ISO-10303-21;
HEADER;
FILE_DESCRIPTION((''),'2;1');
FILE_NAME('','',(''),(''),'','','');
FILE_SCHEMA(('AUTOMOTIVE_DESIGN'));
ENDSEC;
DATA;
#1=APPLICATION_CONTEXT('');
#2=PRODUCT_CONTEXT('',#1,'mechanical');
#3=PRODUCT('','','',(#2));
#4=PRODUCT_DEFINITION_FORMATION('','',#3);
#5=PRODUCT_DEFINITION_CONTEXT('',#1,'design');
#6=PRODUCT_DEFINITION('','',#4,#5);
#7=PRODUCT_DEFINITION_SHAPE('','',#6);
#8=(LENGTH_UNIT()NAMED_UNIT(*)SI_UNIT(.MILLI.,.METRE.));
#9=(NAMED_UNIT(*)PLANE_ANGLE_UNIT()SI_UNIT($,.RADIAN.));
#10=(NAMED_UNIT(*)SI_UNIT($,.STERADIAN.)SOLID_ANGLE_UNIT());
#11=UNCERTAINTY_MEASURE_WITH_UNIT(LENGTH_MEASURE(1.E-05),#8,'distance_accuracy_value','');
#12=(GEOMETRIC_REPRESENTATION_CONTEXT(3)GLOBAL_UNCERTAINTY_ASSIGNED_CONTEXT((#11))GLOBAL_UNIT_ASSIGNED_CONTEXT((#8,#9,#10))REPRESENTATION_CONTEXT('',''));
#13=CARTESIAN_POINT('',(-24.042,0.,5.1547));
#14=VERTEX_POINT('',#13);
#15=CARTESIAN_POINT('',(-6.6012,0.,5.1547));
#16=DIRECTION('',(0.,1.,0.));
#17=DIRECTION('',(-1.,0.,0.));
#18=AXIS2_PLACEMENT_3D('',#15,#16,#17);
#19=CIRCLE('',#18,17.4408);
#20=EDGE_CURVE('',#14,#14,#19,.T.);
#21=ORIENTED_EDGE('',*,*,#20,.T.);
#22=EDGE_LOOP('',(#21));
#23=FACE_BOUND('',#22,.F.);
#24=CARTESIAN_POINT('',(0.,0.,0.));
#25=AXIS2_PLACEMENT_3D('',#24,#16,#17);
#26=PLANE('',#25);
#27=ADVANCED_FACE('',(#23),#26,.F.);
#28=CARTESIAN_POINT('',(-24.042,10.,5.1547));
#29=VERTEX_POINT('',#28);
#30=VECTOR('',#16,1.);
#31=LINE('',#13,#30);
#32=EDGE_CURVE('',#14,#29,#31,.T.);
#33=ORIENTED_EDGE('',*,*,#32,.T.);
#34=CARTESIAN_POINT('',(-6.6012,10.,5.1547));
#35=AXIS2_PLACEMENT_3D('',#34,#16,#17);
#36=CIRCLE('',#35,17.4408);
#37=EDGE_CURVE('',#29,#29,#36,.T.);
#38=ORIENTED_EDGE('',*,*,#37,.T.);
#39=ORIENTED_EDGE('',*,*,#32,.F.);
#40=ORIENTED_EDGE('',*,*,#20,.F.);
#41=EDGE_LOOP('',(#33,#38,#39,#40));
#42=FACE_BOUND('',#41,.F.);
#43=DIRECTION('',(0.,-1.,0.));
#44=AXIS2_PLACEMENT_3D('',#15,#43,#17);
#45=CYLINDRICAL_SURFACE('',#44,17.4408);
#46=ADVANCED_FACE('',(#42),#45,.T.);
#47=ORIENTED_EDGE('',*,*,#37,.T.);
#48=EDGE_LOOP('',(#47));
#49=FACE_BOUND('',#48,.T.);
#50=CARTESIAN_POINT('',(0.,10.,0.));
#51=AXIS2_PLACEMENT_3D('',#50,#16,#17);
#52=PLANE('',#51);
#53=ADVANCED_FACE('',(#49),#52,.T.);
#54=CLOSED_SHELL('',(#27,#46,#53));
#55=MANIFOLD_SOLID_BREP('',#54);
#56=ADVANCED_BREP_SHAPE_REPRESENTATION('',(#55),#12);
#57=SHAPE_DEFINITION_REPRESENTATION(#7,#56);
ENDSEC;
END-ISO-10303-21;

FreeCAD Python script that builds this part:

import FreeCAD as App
import Part
import Sketcher

doc = App.newDocument("Part")
body = doc.addObject("PartDesign::Body", "Body")

sketch1 = body.newObject("Sketcher::SketchObject", "Sketch")
sketch1.AttachmentSupport = (doc.getObject("XZ_Plane"), [""])
sketch1.MapMode = "FlatFace"
sketch1.addGeometry(Part.Circle(App.Vector(-7, 5, 0), App.Vector(0, 0, 1), 17), False)
sketch1.addConstraint([
    Sketcher.Constraint("Diameter", 0, 34.8816),
    Sketcher.Constraint("DistanceX", 0, 3, -1, 1, 6.6012),
    Sketcher.Constraint("DistanceY", -1, 1, 0, 3, 5.1547),
])
pad1 = body.newObject("PartDesign::Pad", "Pad")
pad1.Profile = sketch1
pad1.Length = 10
pad1.Reversed = True

doc.recompute()
